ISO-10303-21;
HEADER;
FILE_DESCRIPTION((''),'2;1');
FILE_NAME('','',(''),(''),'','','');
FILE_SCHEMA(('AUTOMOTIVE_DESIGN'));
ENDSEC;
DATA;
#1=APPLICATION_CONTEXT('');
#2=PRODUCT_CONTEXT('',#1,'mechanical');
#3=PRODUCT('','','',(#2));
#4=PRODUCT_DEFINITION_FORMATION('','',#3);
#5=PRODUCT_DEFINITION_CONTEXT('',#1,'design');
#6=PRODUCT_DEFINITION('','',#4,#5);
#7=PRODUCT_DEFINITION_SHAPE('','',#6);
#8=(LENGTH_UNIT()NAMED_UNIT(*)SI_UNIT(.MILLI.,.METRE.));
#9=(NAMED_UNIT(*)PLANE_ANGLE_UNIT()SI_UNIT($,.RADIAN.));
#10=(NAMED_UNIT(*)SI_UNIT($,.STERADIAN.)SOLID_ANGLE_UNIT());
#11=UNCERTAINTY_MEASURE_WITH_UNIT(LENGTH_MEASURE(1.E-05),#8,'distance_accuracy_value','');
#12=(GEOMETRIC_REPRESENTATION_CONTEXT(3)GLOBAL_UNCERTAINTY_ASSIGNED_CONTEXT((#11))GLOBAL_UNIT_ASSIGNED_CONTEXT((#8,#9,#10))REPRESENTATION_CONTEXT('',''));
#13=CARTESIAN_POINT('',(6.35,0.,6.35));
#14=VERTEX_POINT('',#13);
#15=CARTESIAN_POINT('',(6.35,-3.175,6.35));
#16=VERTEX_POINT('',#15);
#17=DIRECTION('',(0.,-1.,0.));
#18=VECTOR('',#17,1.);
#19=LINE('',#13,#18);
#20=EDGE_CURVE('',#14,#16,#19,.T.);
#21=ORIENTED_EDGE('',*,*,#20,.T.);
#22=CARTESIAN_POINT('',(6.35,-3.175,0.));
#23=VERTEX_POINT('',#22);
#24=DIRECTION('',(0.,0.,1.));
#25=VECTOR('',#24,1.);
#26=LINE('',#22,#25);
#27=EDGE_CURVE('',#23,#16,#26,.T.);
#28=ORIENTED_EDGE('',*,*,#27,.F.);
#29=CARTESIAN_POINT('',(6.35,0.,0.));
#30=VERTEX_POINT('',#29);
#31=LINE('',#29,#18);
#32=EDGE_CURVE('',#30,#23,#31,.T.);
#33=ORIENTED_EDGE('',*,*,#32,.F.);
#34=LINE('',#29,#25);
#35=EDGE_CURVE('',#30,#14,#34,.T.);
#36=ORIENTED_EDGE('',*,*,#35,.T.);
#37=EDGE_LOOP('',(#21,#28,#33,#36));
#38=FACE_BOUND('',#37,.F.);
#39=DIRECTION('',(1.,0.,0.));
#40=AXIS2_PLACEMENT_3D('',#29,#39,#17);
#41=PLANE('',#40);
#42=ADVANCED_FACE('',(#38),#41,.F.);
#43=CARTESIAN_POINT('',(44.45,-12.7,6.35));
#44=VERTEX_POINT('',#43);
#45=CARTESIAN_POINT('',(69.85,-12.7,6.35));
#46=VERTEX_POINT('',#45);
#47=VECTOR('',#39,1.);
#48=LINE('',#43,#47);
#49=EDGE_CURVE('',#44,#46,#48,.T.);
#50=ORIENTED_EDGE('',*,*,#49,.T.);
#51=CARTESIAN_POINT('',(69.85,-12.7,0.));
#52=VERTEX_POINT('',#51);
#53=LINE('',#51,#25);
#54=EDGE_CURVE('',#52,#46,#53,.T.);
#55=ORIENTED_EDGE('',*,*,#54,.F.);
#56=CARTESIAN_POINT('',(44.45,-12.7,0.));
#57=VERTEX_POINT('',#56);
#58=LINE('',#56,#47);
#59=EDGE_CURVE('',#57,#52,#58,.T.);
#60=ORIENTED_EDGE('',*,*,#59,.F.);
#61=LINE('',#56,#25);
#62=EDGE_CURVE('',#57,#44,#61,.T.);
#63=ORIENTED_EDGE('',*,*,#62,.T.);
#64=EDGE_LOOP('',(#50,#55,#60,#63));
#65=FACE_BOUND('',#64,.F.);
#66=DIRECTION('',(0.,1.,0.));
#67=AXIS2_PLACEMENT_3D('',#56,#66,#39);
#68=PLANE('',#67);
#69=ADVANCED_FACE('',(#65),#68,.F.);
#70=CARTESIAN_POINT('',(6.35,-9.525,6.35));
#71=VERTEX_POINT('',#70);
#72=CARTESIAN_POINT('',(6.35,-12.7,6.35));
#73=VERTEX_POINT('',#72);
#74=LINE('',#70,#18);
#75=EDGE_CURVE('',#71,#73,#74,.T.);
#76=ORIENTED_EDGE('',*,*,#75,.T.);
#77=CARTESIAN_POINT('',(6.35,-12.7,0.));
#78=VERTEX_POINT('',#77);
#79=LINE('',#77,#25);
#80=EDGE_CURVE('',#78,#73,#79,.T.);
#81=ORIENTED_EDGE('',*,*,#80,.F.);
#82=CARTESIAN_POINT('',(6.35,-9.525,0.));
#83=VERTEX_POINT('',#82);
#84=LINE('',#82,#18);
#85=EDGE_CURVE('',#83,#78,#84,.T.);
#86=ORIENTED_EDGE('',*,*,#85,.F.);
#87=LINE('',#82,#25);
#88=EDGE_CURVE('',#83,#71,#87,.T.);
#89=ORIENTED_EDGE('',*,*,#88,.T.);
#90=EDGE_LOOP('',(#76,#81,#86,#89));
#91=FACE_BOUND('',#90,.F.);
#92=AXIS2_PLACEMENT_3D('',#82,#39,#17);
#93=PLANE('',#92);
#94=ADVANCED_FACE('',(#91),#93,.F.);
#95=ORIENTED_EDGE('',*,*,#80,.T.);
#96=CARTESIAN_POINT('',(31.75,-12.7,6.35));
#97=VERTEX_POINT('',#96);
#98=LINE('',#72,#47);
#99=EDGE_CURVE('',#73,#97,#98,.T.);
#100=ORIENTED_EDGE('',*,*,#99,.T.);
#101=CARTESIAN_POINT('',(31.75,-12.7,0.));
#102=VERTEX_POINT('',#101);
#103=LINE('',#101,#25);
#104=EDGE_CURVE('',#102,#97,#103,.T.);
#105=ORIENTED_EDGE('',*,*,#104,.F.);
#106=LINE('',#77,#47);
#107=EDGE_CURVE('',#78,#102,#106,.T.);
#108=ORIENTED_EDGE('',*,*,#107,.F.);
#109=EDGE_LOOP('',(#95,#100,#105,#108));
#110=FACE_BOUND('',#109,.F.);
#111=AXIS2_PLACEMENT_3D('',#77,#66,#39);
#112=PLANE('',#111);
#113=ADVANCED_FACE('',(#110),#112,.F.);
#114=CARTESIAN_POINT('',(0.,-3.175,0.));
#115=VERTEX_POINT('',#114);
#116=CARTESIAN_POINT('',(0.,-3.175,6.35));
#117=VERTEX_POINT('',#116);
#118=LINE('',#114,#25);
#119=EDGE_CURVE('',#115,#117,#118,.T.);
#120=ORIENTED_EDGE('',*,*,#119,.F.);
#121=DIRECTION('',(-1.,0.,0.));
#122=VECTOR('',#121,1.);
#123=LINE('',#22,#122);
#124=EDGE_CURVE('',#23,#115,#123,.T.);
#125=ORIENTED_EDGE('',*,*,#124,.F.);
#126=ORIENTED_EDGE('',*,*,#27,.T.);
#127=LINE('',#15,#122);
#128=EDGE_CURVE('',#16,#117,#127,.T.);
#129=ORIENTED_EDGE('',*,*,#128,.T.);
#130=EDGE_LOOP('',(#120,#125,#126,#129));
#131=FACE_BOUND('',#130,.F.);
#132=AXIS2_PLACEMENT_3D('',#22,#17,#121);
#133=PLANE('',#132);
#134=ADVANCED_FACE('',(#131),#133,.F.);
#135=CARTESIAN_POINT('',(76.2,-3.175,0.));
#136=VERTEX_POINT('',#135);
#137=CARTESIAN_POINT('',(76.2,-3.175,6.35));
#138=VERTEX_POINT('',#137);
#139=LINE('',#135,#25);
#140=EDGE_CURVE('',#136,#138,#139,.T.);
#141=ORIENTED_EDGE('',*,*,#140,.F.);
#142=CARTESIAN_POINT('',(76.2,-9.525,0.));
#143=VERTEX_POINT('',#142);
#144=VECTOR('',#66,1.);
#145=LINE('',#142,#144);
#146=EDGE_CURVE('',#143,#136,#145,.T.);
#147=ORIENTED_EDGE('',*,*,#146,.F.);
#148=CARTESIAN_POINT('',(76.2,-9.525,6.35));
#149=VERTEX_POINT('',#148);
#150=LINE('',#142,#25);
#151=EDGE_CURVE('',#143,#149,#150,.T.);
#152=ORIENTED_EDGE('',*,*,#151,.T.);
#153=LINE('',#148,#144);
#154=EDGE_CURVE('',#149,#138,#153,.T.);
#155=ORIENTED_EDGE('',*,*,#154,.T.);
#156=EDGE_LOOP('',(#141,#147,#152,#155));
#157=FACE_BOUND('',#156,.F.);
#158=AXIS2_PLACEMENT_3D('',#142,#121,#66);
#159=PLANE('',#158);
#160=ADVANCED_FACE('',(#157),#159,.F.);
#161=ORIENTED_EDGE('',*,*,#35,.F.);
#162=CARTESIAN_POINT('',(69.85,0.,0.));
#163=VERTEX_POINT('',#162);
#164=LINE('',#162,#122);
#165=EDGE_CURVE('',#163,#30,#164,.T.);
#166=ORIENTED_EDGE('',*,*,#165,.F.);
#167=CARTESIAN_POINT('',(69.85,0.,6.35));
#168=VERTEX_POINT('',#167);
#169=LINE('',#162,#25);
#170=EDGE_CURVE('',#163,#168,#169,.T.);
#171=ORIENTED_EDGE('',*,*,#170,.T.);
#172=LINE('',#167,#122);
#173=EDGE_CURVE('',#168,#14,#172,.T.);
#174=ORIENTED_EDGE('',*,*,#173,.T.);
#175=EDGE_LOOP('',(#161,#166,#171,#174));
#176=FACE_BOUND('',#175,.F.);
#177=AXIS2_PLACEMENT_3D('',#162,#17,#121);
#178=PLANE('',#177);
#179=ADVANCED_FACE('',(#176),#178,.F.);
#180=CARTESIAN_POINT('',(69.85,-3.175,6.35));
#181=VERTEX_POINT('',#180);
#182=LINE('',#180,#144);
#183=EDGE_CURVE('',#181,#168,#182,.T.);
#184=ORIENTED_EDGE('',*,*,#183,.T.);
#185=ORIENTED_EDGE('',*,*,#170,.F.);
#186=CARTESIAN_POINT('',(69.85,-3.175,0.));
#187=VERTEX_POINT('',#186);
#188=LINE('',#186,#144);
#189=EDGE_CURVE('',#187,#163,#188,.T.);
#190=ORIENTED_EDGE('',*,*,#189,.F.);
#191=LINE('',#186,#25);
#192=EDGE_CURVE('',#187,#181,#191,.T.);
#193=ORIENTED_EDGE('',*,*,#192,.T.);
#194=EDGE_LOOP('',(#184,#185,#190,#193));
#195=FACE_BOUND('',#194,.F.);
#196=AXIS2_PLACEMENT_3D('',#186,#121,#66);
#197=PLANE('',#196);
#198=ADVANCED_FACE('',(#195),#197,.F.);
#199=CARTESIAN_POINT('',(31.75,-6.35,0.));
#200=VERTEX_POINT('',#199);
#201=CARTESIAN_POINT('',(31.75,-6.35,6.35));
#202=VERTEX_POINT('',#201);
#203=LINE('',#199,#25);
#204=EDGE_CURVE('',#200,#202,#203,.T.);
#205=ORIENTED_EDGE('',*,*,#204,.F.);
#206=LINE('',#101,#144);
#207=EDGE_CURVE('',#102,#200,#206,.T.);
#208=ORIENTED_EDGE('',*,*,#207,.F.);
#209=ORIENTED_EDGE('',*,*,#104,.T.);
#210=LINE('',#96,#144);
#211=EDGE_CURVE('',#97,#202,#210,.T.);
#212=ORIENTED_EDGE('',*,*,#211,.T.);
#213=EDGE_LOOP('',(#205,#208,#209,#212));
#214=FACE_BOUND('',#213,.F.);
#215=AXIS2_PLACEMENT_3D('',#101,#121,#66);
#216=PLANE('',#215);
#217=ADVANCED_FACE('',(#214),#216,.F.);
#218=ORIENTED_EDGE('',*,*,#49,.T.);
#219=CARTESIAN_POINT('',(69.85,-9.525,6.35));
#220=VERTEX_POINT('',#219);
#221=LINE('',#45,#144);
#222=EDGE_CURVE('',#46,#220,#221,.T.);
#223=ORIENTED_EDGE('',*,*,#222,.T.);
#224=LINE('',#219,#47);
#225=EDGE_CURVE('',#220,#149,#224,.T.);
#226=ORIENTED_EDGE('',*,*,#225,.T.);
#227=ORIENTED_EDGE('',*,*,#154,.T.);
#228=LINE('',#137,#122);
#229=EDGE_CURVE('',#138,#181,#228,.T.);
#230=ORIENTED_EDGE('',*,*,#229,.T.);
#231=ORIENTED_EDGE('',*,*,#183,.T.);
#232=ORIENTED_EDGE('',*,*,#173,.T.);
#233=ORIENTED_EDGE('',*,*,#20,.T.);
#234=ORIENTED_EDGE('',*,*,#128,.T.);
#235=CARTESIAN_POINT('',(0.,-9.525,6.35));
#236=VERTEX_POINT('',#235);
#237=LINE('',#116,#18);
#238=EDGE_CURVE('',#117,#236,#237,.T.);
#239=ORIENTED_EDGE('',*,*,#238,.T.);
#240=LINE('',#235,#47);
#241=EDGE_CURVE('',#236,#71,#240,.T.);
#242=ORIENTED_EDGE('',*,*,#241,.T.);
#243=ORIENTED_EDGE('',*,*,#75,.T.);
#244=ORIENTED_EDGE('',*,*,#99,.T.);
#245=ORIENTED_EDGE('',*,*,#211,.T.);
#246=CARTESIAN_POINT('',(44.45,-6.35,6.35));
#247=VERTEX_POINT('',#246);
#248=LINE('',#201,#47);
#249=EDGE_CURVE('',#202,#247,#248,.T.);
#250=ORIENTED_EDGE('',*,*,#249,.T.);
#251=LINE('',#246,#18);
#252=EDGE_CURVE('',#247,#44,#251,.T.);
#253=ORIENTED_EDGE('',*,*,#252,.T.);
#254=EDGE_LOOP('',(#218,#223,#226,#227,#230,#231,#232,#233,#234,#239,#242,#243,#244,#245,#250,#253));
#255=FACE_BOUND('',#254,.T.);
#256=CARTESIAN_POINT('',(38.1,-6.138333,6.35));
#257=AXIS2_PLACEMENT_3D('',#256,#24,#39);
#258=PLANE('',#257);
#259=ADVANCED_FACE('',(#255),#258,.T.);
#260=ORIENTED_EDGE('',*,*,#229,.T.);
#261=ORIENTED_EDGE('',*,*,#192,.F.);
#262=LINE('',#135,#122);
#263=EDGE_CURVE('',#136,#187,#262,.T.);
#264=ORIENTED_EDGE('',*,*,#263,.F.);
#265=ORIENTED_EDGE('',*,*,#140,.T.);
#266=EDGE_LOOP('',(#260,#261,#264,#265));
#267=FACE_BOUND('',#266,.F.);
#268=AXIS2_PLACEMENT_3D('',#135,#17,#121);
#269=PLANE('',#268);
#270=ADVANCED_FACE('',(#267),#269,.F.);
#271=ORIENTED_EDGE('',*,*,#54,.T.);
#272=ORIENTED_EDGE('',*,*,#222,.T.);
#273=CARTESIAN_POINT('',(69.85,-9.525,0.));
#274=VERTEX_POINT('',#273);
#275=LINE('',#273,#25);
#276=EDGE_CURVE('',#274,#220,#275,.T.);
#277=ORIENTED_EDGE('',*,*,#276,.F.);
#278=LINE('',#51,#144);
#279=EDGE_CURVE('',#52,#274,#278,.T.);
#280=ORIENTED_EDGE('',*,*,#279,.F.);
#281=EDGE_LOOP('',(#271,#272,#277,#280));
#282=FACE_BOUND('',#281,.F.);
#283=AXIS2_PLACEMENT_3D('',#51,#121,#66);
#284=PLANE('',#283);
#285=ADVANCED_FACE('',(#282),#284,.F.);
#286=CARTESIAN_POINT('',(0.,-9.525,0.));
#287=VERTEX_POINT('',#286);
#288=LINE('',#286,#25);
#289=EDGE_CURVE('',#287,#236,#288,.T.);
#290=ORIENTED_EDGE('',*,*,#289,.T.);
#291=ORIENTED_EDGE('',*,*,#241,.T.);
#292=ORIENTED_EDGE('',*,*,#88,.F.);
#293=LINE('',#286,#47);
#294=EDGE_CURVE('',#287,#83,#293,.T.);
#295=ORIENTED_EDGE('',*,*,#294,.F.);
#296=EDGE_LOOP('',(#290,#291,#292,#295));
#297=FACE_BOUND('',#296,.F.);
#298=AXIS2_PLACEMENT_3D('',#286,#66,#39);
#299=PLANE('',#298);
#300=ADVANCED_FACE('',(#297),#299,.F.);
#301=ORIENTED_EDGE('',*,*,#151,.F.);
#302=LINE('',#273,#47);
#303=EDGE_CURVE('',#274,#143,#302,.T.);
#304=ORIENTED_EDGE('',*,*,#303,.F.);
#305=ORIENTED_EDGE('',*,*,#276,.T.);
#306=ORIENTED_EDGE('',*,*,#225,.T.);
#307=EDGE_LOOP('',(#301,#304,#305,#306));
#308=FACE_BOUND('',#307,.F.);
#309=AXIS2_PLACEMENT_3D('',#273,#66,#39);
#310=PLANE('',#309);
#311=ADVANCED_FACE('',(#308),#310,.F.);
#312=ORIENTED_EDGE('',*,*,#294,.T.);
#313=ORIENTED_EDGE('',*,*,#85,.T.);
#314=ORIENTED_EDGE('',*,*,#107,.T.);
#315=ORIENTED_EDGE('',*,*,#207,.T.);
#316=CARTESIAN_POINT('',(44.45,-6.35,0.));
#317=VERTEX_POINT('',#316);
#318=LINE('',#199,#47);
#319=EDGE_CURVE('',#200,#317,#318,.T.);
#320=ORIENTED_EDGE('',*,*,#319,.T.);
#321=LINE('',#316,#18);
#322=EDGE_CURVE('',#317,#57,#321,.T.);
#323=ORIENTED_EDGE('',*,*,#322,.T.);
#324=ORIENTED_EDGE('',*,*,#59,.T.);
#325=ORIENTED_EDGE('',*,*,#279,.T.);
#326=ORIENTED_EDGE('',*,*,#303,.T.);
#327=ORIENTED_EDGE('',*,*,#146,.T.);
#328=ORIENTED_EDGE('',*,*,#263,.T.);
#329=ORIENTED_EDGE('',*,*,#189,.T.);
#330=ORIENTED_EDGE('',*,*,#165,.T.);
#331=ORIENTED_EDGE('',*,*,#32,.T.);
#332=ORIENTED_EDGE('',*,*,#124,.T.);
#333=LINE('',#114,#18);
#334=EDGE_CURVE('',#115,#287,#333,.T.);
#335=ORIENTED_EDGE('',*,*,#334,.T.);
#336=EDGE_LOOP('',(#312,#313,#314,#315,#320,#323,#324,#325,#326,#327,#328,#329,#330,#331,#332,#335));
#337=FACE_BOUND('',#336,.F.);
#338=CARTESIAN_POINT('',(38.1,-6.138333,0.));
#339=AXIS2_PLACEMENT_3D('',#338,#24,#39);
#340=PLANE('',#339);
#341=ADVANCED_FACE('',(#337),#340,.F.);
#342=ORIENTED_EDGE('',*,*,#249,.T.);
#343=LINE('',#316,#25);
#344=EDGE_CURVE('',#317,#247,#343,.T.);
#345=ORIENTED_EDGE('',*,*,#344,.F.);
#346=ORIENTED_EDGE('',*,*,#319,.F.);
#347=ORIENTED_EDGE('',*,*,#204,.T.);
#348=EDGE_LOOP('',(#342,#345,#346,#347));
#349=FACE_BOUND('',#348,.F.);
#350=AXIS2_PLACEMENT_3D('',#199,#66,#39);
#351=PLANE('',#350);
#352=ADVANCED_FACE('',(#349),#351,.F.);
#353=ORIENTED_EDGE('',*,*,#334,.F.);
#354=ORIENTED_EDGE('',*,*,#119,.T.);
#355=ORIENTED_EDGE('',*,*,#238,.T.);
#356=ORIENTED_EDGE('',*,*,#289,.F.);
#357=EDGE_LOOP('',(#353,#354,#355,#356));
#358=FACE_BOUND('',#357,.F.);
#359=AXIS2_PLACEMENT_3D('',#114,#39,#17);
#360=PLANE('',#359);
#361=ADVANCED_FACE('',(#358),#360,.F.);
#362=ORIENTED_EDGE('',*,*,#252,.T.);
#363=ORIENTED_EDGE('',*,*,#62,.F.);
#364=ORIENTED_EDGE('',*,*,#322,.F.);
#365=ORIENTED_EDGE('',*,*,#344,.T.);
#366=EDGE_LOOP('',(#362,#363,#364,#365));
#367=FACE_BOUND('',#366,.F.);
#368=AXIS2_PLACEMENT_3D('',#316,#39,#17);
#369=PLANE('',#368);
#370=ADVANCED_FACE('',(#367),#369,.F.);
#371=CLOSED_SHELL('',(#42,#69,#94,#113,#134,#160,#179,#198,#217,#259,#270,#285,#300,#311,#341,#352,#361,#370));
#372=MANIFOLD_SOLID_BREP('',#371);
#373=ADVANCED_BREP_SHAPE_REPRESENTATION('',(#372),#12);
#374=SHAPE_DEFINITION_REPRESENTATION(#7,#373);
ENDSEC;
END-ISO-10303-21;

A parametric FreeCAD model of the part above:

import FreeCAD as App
import Part
import Sketcher

V = App.Vector
Q = App.Units.Quantity

doc = App.newDocument("Part")
body = doc.addObject("PartDesign::Body", "Body")

# Sketch on XY plane
sketch1 = body.newObject("Sketcher::SketchObject", "Sketch")
sketch1.AttachmentSupport = (doc.getObject("XY_Plane"), [""])
sketch1.MapMode = "FlatFace"
sketch1.addGeometry([
    Part.LineSegment(V(69.8, 0, 0), V(6.3, 0, 0)),  # 0
    Part.LineSegment(V(6.3, 0, 0), V(6.3, -3.2, 0)),  # 1
    Part.LineSegment(V(6.3, -3.2, 0), V(0, -3.2, 0)),  # 2
    Part.LineSegment(V(0, -3.2, 0), V(0, -9.5, 0)),  # 3
    Part.LineSegment(V(0, -9.5, 0), V(6.3, -9.5, 0)),  # 4
    Part.LineSegment(V(6.3, -9.5, 0), V(6.3, -12.7, 0)),  # 5
    Part.LineSegment(V(6.3, -12.7, 0), V(31.8, -12.7, 0)),  # 6
    Part.LineSegment(V(31.8, -12.7, 0), V(31.8, -6.3, 0)),  # 7
    Part.LineSegment(V(31.8, -6.3, 0), V(44.5, -6.3, 0)),  # 8
    Part.LineSegment(V(44.5, -6.3, 0), V(44.5, -12.7, 0)),  # 9
    Part.LineSegment(V(44.5, -12.7, 0), V(69.8, -12.7, 0)),  # 10
    Part.LineSegment(V(69.8, -12.7, 0), V(69.8, -9.5, 0)),  # 11
    Part.LineSegment(V(69.8, -9.5, 0), V(76.2, -9.5, 0)),  # 12
    Part.LineSegment(V(76.2, -9.5, 0), V(76.2, -3.2, 0)),  # 13
    Part.LineSegment(V(76.2, -3.2, 0), V(69.8, -3.2, 0)),  # 14
    Part.LineSegment(V(69.8, -3.2, 0), V(69.8, 0, 0)),  # 15
], False)
sketch1.addConstraint([
    Sketcher.Constraint("Coincident", 0, 2, 1, 1),
    Sketcher.Constraint("Coincident", 1, 2, 2, 1),
    Sketcher.Constraint("Coincident", 2, 2, 3, 1),
    Sketcher.Constraint("Coincident", 3, 2, 4, 1),
    Sketcher.Constraint("Coincident", 4, 2, 5, 1),
    Sketcher.Constraint("Coincident", 5, 2, 6, 1),
    Sketcher.Constraint("Coincident", 6, 2, 7, 1),
    Sketcher.Constraint("Coincident", 7, 2, 8, 1),
    Sketcher.Constraint("Coincident", 8, 2, 9, 1),
    Sketcher.Constraint("Coincident", 9, 2, 10, 1),
    Sketcher.Constraint("Coincident", 10, 2, 11, 1),
    Sketcher.Constraint("Coincident", 11, 2, 12, 1),
    Sketcher.Constraint("Coincident", 12, 2, 13, 1),
    Sketcher.Constraint("Coincident", 13, 2, 14, 1),
    Sketcher.Constraint("Coincident", 14, 2, 15, 1),
    Sketcher.Constraint("Coincident", 15, 2, 0, 1),
    Sketcher.Constraint("Horizontal", 0),
    Sketcher.Constraint("Vertical", 1),
    Sketcher.Constraint("Horizontal", 2),
    Sketcher.Constraint("Vertical", 3),
    Sketcher.Constraint("Horizontal", 4),
    Sketcher.Constraint("Vertical", 5),
    Sketcher.Constraint("Horizontal", 6),
    Sketcher.Constraint("Vertical", 7),
    Sketcher.Constraint("Horizontal", 8),
    Sketcher.Constraint("Vertical", 9),
    Sketcher.Constraint("Horizontal", 10),
    Sketcher.Constraint("Vertical", 11),
    Sketcher.Constraint("Horizontal", 12),
    Sketcher.Constraint("Vertical", 13),
    Sketcher.Constraint("Horizontal", 14),
    Sketcher.Constraint("Vertical", 15),
    Sketcher.Constraint("PointOnObject", 0, 2, -1),
    Sketcher.Constraint("PointOnObject", 2, 2, -2),
    Sketcher.Constraint("Horizontal", 6, 2, 9, 2),
    Sketcher.Constraint("Horizontal", 4, 2, 11, 2),
    Sketcher.Constraint("Horizontal", 2, 2, 13, 2),
    Sketcher.Constraint("Vertical", 1, 2, 4, 2),
    Sketcher.Constraint("Vertical", 11, 2, 14, 2),
    Sketcher.Constraint("Equal", 6, 10),
    Sketcher.Constraint("Equal", 4, 12),
    Sketcher.Constraint("Equal", 14, 3),
    Sketcher.Constraint("Equal", 1, 5),
    Sketcher.Constraint("Equal", 3, 7),
    Sketcher.Constraint("DistanceX", 6, 1, 6, 2, Q("1 in")),
    Sketcher.Constraint("DistanceX", 0, 2, 0, 1, Q("2.5 in")),
    Sketcher.Constraint("DistanceX", -1, 1, 12, 2, Q("3 in")),
    Sketcher.Constraint("DistanceY", 5, 2, -1, 1, Q("0.5 in")),
])
pad1 = body.newObject("PartDesign::Pad", "Pad")
pad1.Profile = sketch1
pad1.Length = Q("0.25 in")

doc.recompute()
